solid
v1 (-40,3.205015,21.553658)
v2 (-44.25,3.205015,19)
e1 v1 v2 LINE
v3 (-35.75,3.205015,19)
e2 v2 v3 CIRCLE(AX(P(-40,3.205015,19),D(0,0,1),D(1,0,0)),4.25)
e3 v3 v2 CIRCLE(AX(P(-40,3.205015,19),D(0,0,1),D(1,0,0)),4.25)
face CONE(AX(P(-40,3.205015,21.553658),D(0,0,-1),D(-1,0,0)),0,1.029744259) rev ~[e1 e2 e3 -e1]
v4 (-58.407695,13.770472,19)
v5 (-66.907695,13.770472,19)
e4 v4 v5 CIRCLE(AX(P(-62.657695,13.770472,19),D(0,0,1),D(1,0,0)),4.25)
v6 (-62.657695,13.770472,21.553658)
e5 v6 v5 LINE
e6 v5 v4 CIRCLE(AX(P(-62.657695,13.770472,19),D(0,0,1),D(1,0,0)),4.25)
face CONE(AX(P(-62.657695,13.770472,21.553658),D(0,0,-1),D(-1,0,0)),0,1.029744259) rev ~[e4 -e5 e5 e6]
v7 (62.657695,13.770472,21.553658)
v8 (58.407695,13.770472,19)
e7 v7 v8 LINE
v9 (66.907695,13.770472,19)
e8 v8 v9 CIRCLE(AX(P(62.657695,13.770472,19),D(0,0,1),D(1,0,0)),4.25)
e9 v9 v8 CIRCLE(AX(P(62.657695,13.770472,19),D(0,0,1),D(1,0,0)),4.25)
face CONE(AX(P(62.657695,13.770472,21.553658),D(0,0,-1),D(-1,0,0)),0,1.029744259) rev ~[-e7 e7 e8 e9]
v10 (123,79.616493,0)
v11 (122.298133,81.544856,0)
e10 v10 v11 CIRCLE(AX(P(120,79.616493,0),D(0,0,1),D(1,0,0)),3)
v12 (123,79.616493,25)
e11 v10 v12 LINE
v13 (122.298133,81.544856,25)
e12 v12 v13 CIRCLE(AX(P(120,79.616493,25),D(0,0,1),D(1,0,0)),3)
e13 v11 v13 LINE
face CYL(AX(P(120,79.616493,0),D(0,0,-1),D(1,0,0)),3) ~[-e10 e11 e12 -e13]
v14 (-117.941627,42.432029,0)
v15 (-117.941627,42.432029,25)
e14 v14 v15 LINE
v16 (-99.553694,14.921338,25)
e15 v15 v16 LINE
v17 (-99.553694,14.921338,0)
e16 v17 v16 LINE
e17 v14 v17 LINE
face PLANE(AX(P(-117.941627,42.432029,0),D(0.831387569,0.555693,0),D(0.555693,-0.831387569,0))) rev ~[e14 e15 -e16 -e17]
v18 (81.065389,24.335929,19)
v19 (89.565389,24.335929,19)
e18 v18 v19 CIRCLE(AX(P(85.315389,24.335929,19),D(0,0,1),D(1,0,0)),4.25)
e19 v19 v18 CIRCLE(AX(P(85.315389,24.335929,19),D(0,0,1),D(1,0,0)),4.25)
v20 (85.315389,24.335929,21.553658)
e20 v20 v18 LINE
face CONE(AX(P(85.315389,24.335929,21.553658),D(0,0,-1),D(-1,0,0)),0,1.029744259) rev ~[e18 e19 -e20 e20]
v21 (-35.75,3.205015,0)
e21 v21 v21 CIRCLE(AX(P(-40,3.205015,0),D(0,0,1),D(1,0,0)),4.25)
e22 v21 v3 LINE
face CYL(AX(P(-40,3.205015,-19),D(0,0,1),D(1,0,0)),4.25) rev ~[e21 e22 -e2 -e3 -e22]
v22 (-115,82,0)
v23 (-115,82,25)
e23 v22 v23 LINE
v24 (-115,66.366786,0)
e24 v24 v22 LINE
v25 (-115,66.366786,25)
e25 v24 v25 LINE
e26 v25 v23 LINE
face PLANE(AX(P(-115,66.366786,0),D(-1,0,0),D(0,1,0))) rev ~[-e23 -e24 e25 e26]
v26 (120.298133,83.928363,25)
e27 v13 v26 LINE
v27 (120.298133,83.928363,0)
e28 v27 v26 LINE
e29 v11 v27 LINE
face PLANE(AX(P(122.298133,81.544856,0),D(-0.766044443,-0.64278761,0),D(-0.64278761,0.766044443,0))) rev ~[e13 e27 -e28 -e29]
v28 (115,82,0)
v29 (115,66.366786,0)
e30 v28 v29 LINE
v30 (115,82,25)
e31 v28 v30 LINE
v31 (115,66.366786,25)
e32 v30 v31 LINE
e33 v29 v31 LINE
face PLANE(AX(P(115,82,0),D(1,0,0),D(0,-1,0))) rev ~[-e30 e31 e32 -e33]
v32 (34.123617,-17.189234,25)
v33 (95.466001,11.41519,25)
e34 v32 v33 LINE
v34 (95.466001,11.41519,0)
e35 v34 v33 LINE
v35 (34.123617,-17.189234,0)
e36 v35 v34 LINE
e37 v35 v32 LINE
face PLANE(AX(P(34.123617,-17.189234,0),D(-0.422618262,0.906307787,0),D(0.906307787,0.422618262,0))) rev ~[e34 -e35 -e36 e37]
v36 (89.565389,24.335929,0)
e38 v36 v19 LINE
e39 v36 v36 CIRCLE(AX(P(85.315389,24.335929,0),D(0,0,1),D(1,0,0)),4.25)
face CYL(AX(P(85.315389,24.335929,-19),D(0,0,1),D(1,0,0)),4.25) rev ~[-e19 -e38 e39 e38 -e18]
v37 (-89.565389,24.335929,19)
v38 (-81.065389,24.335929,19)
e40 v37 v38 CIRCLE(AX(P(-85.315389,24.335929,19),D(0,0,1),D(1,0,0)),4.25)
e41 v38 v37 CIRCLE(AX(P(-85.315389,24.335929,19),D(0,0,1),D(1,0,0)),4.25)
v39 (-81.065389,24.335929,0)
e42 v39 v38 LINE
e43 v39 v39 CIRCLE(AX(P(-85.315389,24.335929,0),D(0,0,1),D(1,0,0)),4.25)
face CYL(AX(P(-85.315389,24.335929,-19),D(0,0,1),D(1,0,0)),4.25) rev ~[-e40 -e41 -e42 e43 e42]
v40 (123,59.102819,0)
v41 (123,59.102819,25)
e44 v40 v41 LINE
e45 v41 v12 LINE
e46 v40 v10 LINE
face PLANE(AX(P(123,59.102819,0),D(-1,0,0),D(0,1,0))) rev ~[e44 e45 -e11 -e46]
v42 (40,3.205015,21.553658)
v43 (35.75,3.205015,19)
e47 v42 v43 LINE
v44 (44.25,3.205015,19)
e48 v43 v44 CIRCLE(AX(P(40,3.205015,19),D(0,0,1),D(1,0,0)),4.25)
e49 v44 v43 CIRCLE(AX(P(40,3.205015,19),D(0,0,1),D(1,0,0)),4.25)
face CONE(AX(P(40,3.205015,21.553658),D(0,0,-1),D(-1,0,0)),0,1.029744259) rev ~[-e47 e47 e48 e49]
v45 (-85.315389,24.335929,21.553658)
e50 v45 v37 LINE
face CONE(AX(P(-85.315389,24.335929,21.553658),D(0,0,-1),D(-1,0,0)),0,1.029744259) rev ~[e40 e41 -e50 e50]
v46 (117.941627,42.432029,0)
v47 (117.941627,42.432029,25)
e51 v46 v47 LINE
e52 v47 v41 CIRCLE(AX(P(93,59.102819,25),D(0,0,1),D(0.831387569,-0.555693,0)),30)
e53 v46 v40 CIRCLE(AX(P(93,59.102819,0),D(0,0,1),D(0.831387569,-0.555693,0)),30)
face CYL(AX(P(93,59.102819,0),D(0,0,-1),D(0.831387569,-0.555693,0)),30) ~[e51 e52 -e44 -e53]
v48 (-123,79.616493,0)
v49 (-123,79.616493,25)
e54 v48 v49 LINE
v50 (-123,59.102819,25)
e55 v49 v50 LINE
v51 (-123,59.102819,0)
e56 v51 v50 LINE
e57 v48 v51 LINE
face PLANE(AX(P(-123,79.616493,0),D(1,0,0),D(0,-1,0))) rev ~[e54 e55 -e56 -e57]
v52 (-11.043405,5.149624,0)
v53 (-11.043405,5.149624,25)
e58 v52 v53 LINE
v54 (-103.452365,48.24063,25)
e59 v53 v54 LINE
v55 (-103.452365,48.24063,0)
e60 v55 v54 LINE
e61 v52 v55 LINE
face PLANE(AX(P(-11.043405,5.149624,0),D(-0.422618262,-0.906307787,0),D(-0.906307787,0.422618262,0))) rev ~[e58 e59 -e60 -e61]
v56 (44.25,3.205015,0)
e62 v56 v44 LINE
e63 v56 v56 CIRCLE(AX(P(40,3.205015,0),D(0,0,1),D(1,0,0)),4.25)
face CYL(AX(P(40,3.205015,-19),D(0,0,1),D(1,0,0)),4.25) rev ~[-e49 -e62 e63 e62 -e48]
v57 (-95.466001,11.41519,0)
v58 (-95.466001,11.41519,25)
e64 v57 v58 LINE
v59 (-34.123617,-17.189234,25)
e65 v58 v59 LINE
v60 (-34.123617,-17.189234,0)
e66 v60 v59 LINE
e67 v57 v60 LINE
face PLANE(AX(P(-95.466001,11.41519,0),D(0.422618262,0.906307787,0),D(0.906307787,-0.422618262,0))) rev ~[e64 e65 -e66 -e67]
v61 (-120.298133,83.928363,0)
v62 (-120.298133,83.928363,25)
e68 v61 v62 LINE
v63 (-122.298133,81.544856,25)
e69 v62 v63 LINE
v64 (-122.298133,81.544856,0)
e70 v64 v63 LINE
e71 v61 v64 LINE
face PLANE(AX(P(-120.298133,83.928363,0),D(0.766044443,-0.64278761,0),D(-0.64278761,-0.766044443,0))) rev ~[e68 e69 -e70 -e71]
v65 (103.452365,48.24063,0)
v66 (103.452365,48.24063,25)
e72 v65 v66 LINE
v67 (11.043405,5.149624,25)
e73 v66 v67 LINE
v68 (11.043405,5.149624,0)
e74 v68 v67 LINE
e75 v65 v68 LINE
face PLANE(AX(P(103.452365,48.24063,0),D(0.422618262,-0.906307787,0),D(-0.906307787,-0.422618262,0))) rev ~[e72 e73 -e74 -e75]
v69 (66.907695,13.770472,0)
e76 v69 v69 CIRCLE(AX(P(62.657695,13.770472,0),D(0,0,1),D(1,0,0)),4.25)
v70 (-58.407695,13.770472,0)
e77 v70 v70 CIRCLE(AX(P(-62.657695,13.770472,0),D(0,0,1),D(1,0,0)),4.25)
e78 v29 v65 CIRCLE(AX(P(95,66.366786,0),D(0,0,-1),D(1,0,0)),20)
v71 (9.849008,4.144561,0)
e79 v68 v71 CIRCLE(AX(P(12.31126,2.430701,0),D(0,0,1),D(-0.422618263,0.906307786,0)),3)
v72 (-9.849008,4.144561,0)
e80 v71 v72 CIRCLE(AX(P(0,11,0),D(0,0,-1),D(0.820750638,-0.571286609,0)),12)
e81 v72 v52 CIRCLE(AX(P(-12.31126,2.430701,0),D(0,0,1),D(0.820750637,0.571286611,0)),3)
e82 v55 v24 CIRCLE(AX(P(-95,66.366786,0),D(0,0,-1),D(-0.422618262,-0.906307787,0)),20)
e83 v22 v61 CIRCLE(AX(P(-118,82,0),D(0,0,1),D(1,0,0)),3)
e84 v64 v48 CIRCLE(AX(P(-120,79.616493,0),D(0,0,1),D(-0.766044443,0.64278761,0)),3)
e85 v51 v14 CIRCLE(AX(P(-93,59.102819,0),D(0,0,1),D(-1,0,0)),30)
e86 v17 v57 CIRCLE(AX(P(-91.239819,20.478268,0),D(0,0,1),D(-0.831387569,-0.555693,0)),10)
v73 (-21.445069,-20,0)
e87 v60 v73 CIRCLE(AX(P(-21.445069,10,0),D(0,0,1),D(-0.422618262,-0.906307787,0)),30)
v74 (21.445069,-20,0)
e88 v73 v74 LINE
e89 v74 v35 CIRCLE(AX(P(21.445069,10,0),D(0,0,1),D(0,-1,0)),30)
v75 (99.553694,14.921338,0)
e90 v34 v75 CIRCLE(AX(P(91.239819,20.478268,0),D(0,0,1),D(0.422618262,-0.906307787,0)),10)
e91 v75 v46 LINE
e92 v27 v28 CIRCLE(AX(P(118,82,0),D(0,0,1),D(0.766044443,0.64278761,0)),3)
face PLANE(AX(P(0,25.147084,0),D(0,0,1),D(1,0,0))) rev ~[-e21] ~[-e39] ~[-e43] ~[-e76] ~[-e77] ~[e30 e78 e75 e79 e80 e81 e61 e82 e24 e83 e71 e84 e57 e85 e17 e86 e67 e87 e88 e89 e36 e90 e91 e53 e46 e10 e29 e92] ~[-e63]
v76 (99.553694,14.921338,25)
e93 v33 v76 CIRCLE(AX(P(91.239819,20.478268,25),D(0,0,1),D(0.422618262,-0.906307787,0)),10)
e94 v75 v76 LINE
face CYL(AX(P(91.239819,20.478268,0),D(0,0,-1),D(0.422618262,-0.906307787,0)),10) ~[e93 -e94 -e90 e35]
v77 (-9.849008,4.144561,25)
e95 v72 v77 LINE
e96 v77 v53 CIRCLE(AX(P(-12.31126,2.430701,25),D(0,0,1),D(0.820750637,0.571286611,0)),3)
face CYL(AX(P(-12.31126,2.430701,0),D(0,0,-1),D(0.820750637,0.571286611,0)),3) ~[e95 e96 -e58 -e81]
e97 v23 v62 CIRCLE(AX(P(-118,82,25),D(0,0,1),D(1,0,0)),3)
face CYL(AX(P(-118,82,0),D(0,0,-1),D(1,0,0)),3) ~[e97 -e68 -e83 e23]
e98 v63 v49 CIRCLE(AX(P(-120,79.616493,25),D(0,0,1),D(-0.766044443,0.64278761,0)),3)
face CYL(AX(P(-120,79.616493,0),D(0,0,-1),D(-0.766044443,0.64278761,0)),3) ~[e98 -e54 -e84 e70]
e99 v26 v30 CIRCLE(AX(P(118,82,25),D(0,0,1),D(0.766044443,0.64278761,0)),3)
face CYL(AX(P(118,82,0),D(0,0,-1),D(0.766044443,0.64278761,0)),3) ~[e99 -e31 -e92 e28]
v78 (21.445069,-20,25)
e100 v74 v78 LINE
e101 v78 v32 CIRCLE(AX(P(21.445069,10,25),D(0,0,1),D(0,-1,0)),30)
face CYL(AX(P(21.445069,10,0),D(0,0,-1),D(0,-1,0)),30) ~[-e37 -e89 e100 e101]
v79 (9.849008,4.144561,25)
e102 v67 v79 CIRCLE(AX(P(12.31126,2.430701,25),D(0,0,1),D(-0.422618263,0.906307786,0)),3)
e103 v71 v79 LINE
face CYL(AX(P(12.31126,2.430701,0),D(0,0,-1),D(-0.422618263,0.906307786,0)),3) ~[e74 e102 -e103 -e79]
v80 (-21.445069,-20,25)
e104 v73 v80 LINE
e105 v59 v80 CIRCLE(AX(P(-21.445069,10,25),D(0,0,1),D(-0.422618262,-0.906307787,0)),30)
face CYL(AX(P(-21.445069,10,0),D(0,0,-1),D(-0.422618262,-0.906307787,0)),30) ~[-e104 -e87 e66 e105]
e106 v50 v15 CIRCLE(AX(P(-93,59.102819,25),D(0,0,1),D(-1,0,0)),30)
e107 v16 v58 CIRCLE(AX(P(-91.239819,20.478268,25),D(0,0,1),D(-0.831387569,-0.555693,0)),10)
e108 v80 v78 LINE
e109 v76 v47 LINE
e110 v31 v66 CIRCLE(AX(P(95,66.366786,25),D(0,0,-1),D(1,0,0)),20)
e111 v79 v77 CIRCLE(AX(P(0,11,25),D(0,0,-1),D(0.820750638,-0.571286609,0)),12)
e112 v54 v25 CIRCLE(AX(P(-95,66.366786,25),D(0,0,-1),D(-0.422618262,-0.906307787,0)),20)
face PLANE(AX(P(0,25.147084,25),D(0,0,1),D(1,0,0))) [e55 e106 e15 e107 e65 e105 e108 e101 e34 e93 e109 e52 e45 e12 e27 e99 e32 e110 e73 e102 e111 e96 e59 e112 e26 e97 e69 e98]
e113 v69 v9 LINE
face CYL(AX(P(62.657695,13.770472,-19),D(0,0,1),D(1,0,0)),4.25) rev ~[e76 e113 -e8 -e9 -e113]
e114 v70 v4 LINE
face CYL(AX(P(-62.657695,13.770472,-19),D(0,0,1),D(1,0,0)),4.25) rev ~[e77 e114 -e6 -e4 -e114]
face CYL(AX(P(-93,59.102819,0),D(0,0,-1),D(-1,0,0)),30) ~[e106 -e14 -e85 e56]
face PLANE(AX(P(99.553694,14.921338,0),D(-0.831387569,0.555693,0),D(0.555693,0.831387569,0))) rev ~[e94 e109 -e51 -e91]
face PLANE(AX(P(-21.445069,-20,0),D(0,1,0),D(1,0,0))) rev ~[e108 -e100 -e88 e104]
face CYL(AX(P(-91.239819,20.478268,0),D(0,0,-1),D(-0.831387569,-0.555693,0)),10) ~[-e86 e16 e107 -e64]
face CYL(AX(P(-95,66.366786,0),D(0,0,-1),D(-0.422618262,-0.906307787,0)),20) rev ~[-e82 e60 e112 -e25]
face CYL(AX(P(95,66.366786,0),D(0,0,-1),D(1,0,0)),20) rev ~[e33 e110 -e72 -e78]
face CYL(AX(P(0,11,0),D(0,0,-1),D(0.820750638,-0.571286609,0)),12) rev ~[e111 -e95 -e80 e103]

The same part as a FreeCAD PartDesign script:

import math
import FreeCAD as App
import Part
import Sketcher

V = App.Vector
Q = App.Units.Quantity

doc = App.newDocument("Part")
body = doc.addObject("PartDesign::Body", "Body")

# Sketch on XY plane
sketch1 = body.newObject("Sketcher::SketchObject", "Sketch")
sketch1.AttachmentSupport = (doc.getObject("XY_Plane"), [""])
sketch1.MapMode = "FlatFace"
sketch1.addGeometry([
    Part.LineSegment(V(-11.043405, 5.149624, 0), V(-103.452365, 48.24063, 0)),  # 0
    Part.ArcOfCircle(Part.Circle(V(-95, 66.366786, 0), V(0, 0, 1), 20), math.radians(-180), math.radians(-115)),  # 1
    Part.LineSegment(V(-115, 66.366786, 0), V(-115, 82, 0)),  # 2
    Part.ArcOfCircle(Part.Circle(V(-118, 82, 0), V(0, 0, 1), 3), math.radians(0), math.radians(140)),  # 3
    Part.LineSegment(V(-120.298133, 83.928363, 0), V(-122.298133, 81.544856, 0)),  # 4
    Part.ArcOfCircle(Part.Circle(V(-120, 79.616493, 0), V(0, 0, 1), 3), math.radians(140), math.radians(180)),  # 5
    Part.LineSegment(V(-123, 79.616493, 0), V(-123, 59.102819, 0)),  # 6
    Part.ArcOfCircle(Part.Circle(V(-93, 59.102819, 0), V(0, 0, 1), 30), math.radians(-180), math.radians(-146.24154)),  # 7
    Part.LineSegment(V(-117.941627, 42.432029, 0), V(-99.553694, 14.921338, 0)),  # 8
    Part.ArcOfCircle(Part.Circle(V(-91.239819, 20.478268, 0), V(0, 0, 1), 10), math.radians(-146.24154), math.radians(-115)),  # 9
    Part.LineSegment(V(-95.466001, 11.41519, 0), V(-34.123617, -17.189234, 0)),  # 10
    Part.ArcOfCircle(Part.Circle(V(-21.445069, 10, 0), V(0, 0, 1), 30), math.radians(-115), math.radians(-90)),  # 11
    Part.LineSegment(V(-21.445069, -20, 0), V(21.445069, -20, 0)),  # 12
    Part.ArcOfCircle(Part.Circle(V(21.445069, 10, 0), V(0, 0, 1), 30), math.radians(-90), math.radians(-65)),  # 13
    Part.LineSegment(V(34.123617, -17.189234, 0), V(95.466001, 11.41519, 0)),  # 14
    Part.ArcOfCircle(Part.Circle(V(91.239819, 20.478268, 0), V(0, 0, 1), 10), math.radians(-65), math.radians(-33.75846)),  # 15
    Part.LineSegment(V(99.553694, 14.921338, 0), V(117.941627, 42.432029, 0)),  # 16
    Part.ArcOfCircle(Part.Circle(V(93, 59.102819, 0), V(0, 0, 1), 30), math.radians(-33.75846), math.radians(0)),  # 17
    Part.LineSegment(V(123, 59.102819, 0), V(123, 79.616493, 0)),  # 18
    Part.ArcOfCircle(Part.Circle(V(120, 79.616493, 0), V(0, 0, 1), 3), math.radians(0), math.radians(40)),  # 19
    Part.LineSegment(V(122.298133, 81.544856, 0), V(120.298133, 83.928363, 0)),  # 20
    Part.ArcOfCircle(Part.Circle(V(118, 82, 0), V(0, 0, 1), 3), math.radians(40), math.radians(180)),  # 21
    Part.LineSegment(V(115, 82, 0), V(115, 66.366786, 0)),  # 22
    Part.ArcOfCircle(Part.Circle(V(95, 66.366786, 0), V(0, 0, 1), 20), math.radians(-65), math.radians(0)),  # 23
    Part.LineSegment(V(103.452365, 48.24063, 0), V(11.043405, 5.149624, 0)),  # 24
    Part.ArcOfCircle(Part.Circle(V(12.31126, 2.430701, 0), V(0, 0, 1), 3), math.radians(115), math.radians(145.160006)),  # 25
    Part.ArcOfCircle(Part.Circle(V(0, 11, 0), V(0, 0, 1), 12), math.radians(-145.160006), math.radians(-34.839994)),  # 26
    Part.ArcOfCircle(Part.Circle(V(-12.31126, 2.430701, 0), V(0, 0, 1), 3), math.radians(34.839994), math.radians(65)),  # 27
], False)
sketch1.addConstraint([
    Sketcher.Constraint("Tangent", 0, 2, 1, 2),
    Sketcher.Constraint("Tangent", 1, 1, 2, 1),
    Sketcher.Constraint("Tangent", 2, 2, 3, 1),
    Sketcher.Constraint("Tangent", 3, 2, 4, 1),
    Sketcher.Constraint("Tangent", 4, 2, 5, 1),
    Sketcher.Constraint("Tangent", 5, 2, 6, 1),
    Sketcher.Constraint("Tangent", 6, 2, 7, 1),
    Sketcher.Constraint("Tangent", 7, 2, 8, 1),
    Sketcher.Constraint("Tangent", 8, 2, 9, 1),
    Sketcher.Constraint("Tangent", 9, 2, 10, 1),
    Sketcher.Constraint("Tangent", 10, 2, 11, 1),
    Sketcher.Constraint("Tangent", 11, 2, 12, 1),
    Sketcher.Constraint("Tangent", 12, 2, 13, 1),
    Sketcher.Constraint("Tangent", 13, 2, 14, 1),
    Sketcher.Constraint("Tangent", 14, 2, 15, 1),
    Sketcher.Constraint("Tangent", 15, 2, 16, 1),
    Sketcher.Constraint("Tangent", 16, 2, 17, 1),
    Sketcher.Constraint("Tangent", 17, 2, 18, 1),
    Sketcher.Constraint("Tangent", 18, 2, 19, 1),
    Sketcher.Constraint("Tangent", 19, 2, 20, 1),
    Sketcher.Constraint("Tangent", 20, 2, 21, 1),
    Sketcher.Constraint("Tangent", 21, 2, 22, 1),
    Sketcher.Constraint("Tangent", 22, 2, 23, 2),
    Sketcher.Constraint("Tangent", 23, 1, 24, 1),
    Sketcher.Constraint("Tangent", 24, 2, 25, 1),
    Sketcher.Constraint("Tangent", 25, 2, 26, 2),
    Sketcher.Constraint("Tangent", 26, 1, 27, 1),
    Sketcher.Constraint("Tangent", 27, 2, 0, 1),
    Sketcher.Constraint("Vertical", 2),
    Sketcher.Constraint("Vertical", 6),
    Sketcher.Constraint("Horizontal", 12),
    Sketcher.Constraint("Vertical", 18),
    Sketcher.Constraint("Vertical", 22),
    Sketcher.Constraint("Equal", 3, 5),
    Sketcher.Constraint("Equal", 7, 11),
    Sketcher.Constraint("Equal", 11, 13),
    Sketcher.Constraint("Equal", 9, 15),
    Sketcher.Constraint("Equal", 13, 17),
    Sketcher.Constraint("Equal", 5, 19),
    Sketcher.Constraint("Equal", 19, 21),
    Sketcher.Constraint("Equal", 1, 23),
    Sketcher.Constraint("Equal", 21, 25),
    Sketcher.Constraint("Equal", 25, 27),
    Sketcher.Constraint("Symmetric", 9, 3, 15, 3, -2),
    Sketcher.Constraint("Symmetric", 7, 3, 17, 3, -2),
    Sketcher.Constraint("Symmetric", 3, 3, 21, 3, -2),
    Sketcher.Constraint("Symmetric", 25, 3, 27, 3, -2),
    Sketcher.Constraint("Parallel", 0, 10),
    Sketcher.Constraint("Parallel", 14, 24),
    Sketcher.Constraint("Horizontal", 5, 3, 19, 3),
    Sketcher.Constraint("Horizontal", 1, 3, 23, 3),
    Sketcher.Constraint("Radius", 1, 20.0),
    Sketcher.Constraint("Radius", 3, 3.0),
    Sketcher.Constraint("Radius", 7, 30.0),
    Sketcher.Constraint("Radius", 9, 10.0),
    Sketcher.Constraint("Radius", 26, 12.0),
    Sketcher.Constraint("Angle", 0, Q("155 deg")),
    Sketcher.Constraint("Angle", 4, Q("-130 deg")),
    Sketcher.Constraint("DistanceX", 1, 3, -1, 1, 95.0),
    Sketcher.Constraint("DistanceY", -1, 1, 3, 3, 82.0),
    Sketcher.Constraint("DistanceX", 5, 3, -1, 1, 120.0),
    Sketcher.Constraint("DistanceY", -1, 1, 11, 3, 10.0),
    Sketcher.Constraint("DistanceY", -1, 1, 26, 3, 11.0),
    Sketcher.Constraint("DistanceX", 9, 2, -1, 1, 95.466001),
    Sketcher.Constraint("DistanceX", 12, 1, 12, 2, 42.890138),
    Sketcher.Constraint("DistanceY", -1, 1, 25, 3, 2.430701),
    Sketcher.Constraint("DistanceY", 7, 2, 0, 2, 5.808601),
])
pad1 = body.newObject("PartDesign::Pad", "Pad")
pad1.Profile = sketch1
pad1.Length = 25

# Sketch on XY plane
sketch2 = body.newObject("Sketcher::SketchObject", "Sketch001")
sketch2.AttachmentSupport = (doc.getObject("XY_Plane"), [""])
sketch2.MapMode = "FlatFace"
sketch2.addGeometry([
    Part.Circle(V(40, 3.205015, 0), V(0, 0, 1), 4.25),  # 0
    Part.Circle(V(62.657695, 13.770472, 0), V(0, 0, 1), 4.25),  # 1
    Part.Circle(V(85.315389, 24.335929, 0), V(0, 0, 1), 4.25),  # 2
    Part.Circle(V(-85.315389, 24.335929, 0), V(0, 0, 1), 4.25),  # 3
    Part.Circle(V(-62.657695, 13.770472, 0), V(0, 0, 1), 4.25),  # 4
    Part.Circle(V(-40, 3.205015, 0), V(0, 0, 1), 4.25),  # 5
], False)
sketch2.addConstraint([
    Sketcher.Constraint("Equal", 0, 1),
    Sketcher.Constraint("Equal", 1, 2),
    Sketcher.Constraint("Equal", 2, 3),
    Sketcher.Constraint("Equal", 3, 4),
    Sketcher.Constraint("Equal", 4, 5),
    Sketcher.Constraint("Symmetric", 2, 3, 3, 3, -2),
    Sketcher.Constraint("Symmetric", 1, 3, 4, 3, -2),
    Sketcher.Constraint("Symmetric", 0, 3, 5, 3, -2),
    Sketcher.Constraint("Diameter", 0, 8.5),
    Sketcher.Constraint("DistanceX", -1, 1, 0, 3, 40.0),
    Sketcher.Constraint("DistanceX", -1, 1, 2, 3, 85.315389),
    Sketcher.Constraint("DistanceY", -1, 1, 2, 3, 24.335929),
    Sketcher.Constraint("DistanceX", 4, 3, 1, 3, 125.315389),
    Sketcher.Constraint("DistanceY", -1, 1, 0, 3, 3.205015),
    Sketcher.Constraint("DistanceY", -1, 1, 1, 3, 13.770472),
])
doc.recompute()
hole = body.newObject("PartDesign::Hole", "Hole")
hole.Profile = sketch2
hole.ThreadType = "None"
hole.Diameter = 8.5
hole.DepthType = "Dimension"
hole.Depth = 19
hole.DrillPoint = "Angled"
hole.DrillPointAngle = 118
hole.Reversed = True

doc.recompute()
